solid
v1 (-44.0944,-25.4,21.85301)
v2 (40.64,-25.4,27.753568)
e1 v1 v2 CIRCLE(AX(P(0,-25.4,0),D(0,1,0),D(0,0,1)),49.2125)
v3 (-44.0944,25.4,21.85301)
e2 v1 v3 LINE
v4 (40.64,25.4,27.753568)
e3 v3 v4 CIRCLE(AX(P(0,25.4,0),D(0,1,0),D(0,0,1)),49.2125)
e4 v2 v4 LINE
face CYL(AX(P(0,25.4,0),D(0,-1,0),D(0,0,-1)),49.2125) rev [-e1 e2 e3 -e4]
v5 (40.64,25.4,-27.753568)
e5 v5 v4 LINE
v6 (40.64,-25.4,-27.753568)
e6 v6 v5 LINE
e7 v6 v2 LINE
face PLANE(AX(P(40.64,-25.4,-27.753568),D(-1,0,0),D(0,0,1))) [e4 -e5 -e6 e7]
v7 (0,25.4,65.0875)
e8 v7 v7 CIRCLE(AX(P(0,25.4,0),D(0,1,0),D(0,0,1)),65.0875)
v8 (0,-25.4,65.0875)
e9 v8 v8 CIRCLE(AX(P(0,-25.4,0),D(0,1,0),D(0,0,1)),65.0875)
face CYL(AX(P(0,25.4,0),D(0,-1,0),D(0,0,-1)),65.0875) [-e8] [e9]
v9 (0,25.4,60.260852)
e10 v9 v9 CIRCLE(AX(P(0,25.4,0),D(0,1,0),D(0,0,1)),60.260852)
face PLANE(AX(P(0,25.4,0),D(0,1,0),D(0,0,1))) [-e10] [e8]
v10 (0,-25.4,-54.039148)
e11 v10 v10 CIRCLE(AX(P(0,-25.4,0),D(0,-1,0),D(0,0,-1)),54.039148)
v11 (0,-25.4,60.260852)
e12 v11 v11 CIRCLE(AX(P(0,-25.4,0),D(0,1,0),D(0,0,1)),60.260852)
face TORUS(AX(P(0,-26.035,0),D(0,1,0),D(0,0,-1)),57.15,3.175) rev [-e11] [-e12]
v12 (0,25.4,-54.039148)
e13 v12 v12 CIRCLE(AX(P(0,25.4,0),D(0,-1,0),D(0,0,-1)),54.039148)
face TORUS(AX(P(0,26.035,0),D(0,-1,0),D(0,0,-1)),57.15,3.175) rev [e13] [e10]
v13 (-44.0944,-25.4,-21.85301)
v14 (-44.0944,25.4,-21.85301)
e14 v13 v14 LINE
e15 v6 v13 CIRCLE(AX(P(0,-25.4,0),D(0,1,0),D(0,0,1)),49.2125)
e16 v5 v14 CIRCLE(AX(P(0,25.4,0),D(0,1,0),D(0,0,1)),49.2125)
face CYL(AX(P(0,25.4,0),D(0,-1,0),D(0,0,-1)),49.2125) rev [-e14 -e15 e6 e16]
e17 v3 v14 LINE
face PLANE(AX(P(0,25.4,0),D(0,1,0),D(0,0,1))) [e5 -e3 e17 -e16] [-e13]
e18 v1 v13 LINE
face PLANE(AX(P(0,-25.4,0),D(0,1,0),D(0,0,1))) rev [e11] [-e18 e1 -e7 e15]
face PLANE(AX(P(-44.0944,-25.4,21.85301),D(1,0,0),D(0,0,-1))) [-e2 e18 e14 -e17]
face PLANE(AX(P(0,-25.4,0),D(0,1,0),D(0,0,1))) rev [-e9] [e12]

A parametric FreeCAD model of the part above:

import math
import FreeCAD as App
import Part
import Sketcher
Q = App.Units.Quantity

doc = App.newDocument("Part")
body = doc.addObject("PartDesign::Body", "Body")

sketch1 = body.newObject("Sketcher::SketchObject", "Sketch")
sketch1.AttachmentSupport = (doc.getObject("XZ_Plane"), [""])
sketch1.MapMode = "FlatFace"
sketch1.addGeometry(Part.Circle(App.Vector(0, 0, 0), App.Vector(0, 0, 1), 65), False)
sketch1.addGeometry(Part.Circle(App.Vector(0, 0, 0), App.Vector(0, 0, 1), 49), False)
sketch1.addConstraint(Sketcher.Constraint("Coincident", 0, 3, -1, 1))
sketch1.addConstraint(Sketcher.Constraint("Coincident", 1, 3, -1, 1))
sketch1.addConstraint(Sketcher.Constraint("Diameter", 0, Q("5.125 in")))
sketch1.addConstraint(Sketcher.Constraint("Diameter", 1, Q("3.875 in")))
pad1 = body.newObject("PartDesign::Pad", "Pad")
pad1.Profile = sketch1
pad1.Length = Q("2 in")
pad1.Midplane = True

sketch2 = body.newObject("Sketcher::SketchObject", "Sketch001")
sketch2.AttachmentSupport = (doc.getObject("XY_Plane"), [""])
sketch2.MapMode = "FlatFace"
sketch2.addGeometry(Part.Circle(App.Vector(57.1, 26, 0), App.Vector(0, 0, 1), 3.2), False)
sketch2.addConstraint(Sketcher.Constraint("Diameter", 0, Q("0.25 in")))
sketch2.addConstraint(Sketcher.Constraint("DistanceX", -1, 1, 0, 3, Q("2.25 in")))
sketch2.addConstraint(Sketcher.Constraint("DistanceY", -1, 1, 0, 3, Q("1.025 in")))
groove = body.newObject("PartDesign::Groove", "Groove")
groove.Profile = sketch2
groove.ReferenceAxis = (sketch2, ["V_Axis"])
groove.Angle = 360
doc.recompute()

mirrored = body.newObject("PartDesign::Mirrored", "Mirrored")
mirrored.Originals = [groove]
mirrored.MirrorPlane = (doc.getObject("XZ_Plane"), [""])
body.Tip = mirrored

sketch3 = body.newObject("Sketcher::SketchObject", "Sketch002")
sketch3.AttachmentSupport = (doc.getObject("XZ_Plane"), [""])
sketch3.MapMode = "FlatFace"
sketch3.AttachmentOffset = App.Placement(App.Vector(0, 0, -1 * 25.4), App.Rotation())
sketch3.addGeometry(Part.LineSegment(App.Vector(-44, 22, 0), App.Vector(-44, -22, 0)), False)
sketch3.addGeometry(Part.ArcOfCircle(Part.Circle(App.Vector(0, 0, 0), App.Vector(0, 0, 1), 49), math.radians(154), math.radians(206)), False)
sketch3.addConstraint(Sketcher.Constraint("Coincident", 0, 1, 1, 1))
sketch3.addConstraint(Sketcher.Constraint("Coincident", 1, 2, 0, 2))
sketch3.addConstraint(Sketcher.Constraint("Vertical", 0))
sketch3.addConstraint(Sketcher.Constraint("Coincident", 1, 3, -1, 1))
sketch3.addConstraint(Sketcher.Constraint("Radius", 1, Q("1.9375 in")))
sketch3.addConstraint(Sketcher.Constraint("DistanceX", 0, 1, -1, 1, Q("1.736 in")))
pad2 = body.newObject("PartDesign::Pad", "Pad001")
pad2.Profile = sketch3
pad2.Length = Q("2 in")

sketch4 = body.newObject("Sketcher::SketchObject", "Sketch003")
sketch4.AttachmentSupport = (doc.getObject("XZ_Plane"), [""])
sketch4.MapMode = "FlatFace"
sketch4.AttachmentOffset = App.Placement(App.Vector(0, 0, -1 * 25.4), App.Rotation())
sketch4.addGeometry(Part.LineSegment(App.Vector(41, -28, 0), App.Vector(41, 28, 0)), False)
sketch4.addGeometry(Part.ArcOfCircle(Part.Circle(App.Vector(0, 0, 0), App.Vector(0, 0, 1), 49), math.radians(-34), math.radians(34)), False)
sketch4.addConstraint(Sketcher.Constraint("Coincident", 0, 1, 1, 1))
sketch4.addConstraint(Sketcher.Constraint("Coincident", 1, 2, 0, 2))
sketch4.addConstraint(Sketcher.Constraint("Vertical", 0))
sketch4.addConstraint(Sketcher.Constraint("Coincident", 1, 3, -1, 1))
sketch4.addConstraint(Sketcher.Constraint("Radius", 1, Q("1.9375 in")))
sketch4.addConstraint(Sketcher.Constraint("DistanceX", -1, 1, 0, 1, Q("1.6 in")))
pad3 = body.newObject("PartDesign::Pad", "Pad002")
pad3.Profile = sketch4
pad3.Length = Q("2 in")

doc.recompute()
